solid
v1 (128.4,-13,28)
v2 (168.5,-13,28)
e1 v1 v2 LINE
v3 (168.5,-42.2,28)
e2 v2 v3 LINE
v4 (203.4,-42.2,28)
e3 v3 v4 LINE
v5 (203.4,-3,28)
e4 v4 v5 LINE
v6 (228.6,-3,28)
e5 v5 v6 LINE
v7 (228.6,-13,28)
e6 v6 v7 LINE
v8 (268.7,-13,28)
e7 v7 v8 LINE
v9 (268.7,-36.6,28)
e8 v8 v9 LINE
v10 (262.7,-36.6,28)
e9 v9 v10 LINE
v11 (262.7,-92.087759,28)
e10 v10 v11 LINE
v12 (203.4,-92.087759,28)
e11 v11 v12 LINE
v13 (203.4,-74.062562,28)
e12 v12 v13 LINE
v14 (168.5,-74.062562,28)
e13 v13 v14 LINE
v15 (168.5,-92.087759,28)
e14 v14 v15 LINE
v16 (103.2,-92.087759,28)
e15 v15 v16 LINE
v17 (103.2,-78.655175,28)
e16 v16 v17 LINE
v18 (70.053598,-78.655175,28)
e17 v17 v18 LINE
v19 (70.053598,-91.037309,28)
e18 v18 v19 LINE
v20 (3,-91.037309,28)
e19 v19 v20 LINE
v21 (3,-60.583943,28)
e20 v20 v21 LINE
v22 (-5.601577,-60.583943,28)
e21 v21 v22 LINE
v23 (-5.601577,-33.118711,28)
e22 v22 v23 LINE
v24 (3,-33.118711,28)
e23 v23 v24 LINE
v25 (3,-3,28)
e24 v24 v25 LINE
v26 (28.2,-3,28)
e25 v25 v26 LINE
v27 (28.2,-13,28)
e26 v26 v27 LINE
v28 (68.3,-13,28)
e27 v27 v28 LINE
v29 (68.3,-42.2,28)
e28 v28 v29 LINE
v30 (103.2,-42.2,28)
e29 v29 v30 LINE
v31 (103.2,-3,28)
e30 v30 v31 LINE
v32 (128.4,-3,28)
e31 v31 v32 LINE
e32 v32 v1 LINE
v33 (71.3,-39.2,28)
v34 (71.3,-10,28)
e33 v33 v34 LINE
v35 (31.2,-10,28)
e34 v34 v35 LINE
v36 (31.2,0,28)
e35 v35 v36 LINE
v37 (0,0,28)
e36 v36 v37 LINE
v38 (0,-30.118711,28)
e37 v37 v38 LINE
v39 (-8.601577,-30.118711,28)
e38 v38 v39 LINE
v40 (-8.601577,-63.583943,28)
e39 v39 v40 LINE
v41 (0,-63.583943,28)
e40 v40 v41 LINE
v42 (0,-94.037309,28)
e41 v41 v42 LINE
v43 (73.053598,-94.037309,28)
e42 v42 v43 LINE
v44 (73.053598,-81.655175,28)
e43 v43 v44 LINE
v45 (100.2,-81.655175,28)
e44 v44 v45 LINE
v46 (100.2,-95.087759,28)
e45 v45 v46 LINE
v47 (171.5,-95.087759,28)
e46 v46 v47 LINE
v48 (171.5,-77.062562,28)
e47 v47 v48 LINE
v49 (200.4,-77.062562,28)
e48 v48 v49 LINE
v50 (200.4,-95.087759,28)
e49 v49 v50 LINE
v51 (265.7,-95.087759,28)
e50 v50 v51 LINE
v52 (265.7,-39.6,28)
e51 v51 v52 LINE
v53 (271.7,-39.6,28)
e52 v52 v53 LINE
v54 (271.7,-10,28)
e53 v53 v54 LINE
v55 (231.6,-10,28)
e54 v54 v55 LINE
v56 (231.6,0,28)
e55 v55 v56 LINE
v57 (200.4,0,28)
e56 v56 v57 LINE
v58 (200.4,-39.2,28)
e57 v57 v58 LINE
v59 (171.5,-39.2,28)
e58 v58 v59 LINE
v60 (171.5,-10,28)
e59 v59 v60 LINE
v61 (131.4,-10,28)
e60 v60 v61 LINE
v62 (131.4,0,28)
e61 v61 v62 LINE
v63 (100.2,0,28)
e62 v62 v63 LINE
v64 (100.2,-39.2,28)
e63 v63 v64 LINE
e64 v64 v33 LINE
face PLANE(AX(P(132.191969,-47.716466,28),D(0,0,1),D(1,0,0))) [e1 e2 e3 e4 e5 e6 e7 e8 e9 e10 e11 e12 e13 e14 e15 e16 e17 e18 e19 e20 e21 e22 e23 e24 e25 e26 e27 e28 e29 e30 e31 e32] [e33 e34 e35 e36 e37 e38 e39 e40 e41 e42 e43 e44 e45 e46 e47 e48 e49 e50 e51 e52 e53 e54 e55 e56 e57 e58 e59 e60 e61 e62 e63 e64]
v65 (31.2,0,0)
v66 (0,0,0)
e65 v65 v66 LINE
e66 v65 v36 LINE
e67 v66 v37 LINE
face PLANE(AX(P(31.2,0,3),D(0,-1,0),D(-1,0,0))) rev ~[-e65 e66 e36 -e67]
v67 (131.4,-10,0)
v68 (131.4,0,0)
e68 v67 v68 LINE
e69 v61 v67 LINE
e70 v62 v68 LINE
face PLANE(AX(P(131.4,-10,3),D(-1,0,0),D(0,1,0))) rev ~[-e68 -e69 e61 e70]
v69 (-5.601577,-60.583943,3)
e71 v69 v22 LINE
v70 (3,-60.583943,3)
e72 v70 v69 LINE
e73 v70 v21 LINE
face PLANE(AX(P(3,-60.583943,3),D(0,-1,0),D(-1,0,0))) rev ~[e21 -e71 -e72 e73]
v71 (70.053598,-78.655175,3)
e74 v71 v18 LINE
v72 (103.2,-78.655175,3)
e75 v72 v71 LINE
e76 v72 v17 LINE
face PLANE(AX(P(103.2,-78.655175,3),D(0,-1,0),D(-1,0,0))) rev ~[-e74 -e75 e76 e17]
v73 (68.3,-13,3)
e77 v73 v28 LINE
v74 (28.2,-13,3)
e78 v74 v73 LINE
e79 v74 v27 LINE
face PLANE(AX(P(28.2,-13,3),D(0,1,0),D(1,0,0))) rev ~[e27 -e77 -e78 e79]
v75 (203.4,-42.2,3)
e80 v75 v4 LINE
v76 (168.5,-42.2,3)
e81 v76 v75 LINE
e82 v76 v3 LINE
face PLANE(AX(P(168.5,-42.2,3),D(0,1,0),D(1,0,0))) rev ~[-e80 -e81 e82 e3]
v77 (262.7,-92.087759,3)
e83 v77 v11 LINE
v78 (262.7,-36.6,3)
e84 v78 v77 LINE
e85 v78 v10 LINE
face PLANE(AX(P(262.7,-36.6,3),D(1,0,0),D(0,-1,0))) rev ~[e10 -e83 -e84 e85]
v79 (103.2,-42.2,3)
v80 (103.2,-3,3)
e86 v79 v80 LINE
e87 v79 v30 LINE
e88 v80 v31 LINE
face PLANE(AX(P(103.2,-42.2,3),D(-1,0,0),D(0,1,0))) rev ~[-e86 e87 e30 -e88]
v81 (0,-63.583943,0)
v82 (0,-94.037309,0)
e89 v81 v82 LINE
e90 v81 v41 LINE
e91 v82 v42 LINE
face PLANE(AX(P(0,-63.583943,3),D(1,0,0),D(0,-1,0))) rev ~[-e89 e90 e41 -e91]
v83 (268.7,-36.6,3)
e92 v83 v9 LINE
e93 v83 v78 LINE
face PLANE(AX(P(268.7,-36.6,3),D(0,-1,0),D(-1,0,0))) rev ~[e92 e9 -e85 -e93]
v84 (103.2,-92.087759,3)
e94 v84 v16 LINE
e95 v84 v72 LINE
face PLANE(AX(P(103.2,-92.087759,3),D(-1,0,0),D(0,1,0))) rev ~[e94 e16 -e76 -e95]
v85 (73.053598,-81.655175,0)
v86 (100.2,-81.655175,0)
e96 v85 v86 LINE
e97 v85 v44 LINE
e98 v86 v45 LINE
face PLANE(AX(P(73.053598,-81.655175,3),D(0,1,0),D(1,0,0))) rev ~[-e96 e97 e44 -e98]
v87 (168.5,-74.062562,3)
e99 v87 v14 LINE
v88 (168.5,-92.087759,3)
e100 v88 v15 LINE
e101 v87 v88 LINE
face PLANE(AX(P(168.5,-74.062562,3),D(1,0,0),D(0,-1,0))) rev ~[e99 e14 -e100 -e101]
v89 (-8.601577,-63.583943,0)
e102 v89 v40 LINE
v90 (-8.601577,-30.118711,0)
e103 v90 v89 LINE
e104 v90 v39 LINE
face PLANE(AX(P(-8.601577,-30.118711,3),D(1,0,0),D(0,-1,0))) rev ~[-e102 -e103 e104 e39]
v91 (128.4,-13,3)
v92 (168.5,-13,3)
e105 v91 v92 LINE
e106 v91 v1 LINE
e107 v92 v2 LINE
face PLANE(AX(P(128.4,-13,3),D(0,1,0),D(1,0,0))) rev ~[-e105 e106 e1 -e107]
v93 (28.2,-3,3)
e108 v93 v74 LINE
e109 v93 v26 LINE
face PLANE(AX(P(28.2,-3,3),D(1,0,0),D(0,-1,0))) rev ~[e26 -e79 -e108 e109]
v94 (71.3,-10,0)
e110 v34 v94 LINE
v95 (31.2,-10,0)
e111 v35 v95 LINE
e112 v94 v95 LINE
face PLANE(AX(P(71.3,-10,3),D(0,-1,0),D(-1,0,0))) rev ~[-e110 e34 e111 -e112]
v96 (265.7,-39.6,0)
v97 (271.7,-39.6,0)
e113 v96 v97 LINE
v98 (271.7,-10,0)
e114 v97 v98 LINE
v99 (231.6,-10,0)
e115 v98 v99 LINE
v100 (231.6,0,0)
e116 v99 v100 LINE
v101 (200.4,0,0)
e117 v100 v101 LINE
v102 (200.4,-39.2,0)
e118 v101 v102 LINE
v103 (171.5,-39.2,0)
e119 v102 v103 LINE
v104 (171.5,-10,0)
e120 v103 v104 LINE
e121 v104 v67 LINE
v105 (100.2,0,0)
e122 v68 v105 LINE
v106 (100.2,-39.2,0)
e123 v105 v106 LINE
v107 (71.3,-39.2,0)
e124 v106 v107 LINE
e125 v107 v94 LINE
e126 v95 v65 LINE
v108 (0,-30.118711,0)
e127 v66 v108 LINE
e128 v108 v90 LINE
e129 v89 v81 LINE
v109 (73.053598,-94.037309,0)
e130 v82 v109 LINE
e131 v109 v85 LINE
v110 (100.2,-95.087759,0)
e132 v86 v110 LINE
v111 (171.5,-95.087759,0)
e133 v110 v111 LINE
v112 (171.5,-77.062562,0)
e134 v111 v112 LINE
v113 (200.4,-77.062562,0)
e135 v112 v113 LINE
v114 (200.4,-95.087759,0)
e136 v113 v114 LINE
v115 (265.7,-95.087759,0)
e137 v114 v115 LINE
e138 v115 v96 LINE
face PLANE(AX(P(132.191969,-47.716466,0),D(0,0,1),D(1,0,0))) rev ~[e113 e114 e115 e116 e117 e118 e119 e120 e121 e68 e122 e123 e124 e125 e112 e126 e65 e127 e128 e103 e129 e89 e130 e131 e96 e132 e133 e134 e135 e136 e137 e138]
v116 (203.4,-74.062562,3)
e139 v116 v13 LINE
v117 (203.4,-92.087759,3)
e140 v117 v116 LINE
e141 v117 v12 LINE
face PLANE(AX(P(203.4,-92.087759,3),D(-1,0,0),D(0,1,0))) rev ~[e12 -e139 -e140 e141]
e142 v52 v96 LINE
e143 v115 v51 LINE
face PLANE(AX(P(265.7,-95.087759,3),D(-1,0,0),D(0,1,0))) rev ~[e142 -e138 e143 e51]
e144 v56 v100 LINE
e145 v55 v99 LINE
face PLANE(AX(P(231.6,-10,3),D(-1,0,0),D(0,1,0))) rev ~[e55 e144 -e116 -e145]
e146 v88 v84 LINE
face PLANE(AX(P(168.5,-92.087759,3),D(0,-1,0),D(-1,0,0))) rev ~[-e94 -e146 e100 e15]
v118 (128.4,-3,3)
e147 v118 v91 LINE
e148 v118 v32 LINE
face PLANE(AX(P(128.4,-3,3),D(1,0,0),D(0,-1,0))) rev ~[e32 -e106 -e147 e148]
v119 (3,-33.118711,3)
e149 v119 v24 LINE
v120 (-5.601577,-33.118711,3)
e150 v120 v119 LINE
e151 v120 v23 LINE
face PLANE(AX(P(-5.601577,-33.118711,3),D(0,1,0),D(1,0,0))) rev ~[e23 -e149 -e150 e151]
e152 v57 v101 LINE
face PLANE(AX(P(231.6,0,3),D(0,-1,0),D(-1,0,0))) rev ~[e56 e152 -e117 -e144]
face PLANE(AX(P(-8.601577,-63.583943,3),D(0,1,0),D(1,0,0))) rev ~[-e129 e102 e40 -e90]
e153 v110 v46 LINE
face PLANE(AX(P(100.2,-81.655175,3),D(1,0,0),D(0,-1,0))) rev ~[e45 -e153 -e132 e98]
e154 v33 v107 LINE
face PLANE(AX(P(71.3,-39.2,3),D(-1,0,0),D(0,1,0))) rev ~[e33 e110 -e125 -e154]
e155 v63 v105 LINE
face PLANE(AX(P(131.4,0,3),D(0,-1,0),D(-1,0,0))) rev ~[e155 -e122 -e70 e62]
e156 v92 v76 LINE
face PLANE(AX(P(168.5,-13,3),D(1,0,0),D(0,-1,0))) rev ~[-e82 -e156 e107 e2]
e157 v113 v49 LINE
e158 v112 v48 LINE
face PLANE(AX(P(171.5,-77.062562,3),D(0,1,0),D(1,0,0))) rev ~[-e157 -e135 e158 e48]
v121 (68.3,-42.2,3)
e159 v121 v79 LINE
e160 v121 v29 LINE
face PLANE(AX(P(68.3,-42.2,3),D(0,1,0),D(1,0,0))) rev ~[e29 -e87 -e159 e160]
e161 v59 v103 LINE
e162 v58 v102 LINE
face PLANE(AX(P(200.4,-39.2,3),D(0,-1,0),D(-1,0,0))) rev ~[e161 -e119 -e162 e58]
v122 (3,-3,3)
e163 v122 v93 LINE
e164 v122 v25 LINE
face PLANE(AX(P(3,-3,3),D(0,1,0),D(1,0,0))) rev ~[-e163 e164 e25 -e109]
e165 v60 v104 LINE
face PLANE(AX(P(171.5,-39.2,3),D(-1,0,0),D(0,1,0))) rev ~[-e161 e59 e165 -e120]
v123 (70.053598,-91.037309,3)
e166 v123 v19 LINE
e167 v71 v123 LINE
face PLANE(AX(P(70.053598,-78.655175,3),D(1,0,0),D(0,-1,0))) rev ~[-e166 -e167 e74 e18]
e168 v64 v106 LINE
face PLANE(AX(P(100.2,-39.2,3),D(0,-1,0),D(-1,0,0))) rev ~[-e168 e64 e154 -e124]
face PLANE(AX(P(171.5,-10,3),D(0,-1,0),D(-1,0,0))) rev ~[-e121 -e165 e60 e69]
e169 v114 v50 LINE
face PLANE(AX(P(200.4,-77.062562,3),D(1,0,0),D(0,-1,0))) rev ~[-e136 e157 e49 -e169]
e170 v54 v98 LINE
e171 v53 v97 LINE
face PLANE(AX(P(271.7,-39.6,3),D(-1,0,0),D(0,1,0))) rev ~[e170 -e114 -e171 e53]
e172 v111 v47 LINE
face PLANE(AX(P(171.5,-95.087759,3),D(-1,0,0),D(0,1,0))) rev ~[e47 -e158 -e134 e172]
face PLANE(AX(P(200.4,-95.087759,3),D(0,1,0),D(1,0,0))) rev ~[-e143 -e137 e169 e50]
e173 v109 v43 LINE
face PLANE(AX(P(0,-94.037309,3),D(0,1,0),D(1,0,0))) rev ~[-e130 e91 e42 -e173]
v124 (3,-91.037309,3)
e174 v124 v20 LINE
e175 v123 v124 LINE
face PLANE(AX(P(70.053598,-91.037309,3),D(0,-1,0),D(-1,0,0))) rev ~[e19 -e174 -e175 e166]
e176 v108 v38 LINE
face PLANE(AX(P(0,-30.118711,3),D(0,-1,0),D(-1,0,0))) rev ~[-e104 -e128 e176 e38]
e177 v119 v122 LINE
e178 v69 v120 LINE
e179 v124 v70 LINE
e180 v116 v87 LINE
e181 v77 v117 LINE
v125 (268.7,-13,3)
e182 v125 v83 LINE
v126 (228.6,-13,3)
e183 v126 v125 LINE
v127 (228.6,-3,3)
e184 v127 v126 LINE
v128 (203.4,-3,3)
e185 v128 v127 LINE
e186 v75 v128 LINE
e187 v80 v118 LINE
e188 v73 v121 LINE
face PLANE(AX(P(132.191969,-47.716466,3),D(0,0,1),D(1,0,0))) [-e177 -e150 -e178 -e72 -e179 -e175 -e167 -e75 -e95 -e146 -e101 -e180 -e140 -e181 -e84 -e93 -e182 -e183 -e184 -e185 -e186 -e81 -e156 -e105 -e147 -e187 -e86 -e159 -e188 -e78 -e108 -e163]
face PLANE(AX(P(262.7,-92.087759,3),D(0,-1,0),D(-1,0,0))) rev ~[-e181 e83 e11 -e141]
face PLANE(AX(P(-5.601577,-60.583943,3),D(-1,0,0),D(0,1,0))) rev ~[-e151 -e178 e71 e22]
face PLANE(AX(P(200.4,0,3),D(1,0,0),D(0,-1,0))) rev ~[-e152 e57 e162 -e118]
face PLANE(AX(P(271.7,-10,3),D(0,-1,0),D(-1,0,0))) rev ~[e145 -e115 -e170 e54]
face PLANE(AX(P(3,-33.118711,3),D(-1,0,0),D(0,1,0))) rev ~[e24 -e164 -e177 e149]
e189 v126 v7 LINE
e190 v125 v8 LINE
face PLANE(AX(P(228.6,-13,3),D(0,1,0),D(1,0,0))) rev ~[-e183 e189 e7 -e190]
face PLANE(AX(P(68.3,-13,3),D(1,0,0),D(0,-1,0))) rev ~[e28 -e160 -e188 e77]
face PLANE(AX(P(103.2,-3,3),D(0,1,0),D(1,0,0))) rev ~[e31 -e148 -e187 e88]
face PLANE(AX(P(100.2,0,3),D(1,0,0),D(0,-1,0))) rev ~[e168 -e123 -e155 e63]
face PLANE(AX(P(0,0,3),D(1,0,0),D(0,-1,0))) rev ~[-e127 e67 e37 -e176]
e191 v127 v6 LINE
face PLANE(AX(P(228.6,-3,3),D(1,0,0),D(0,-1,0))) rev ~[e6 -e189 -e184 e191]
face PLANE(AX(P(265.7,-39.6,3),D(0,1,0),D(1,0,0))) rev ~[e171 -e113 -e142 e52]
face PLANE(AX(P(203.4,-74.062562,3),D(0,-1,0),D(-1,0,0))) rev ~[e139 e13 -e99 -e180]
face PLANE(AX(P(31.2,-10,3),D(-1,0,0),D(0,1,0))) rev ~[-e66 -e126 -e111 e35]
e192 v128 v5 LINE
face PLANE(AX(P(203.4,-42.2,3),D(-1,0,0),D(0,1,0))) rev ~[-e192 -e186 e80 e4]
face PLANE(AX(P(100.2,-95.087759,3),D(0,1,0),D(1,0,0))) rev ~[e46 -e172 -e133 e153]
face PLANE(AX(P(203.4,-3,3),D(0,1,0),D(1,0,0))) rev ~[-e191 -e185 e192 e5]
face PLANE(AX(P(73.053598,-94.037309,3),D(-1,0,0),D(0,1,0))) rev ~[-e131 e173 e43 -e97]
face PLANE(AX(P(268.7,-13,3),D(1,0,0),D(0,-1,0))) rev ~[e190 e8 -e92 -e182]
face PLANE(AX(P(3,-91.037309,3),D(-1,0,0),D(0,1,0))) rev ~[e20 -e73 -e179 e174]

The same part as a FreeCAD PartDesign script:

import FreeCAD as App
import Part
import Sketcher

doc = App.newDocument("Part")
body = doc.addObject("PartDesign::Body", "Body")

# Sketch on XY plane
sketch1 = body.newObject("Sketcher::SketchObject", "Sketch")
sketch1.AttachmentSupport = (doc.getObject("XY_Plane"), [""])
sketch1.MapMode = "FlatFace"
sketch1.addGeometry(Part.LineSegment(App.Vector(31, 0, 0), App.Vector(0, 0, 0)), False)
sketch1.addGeometry(Part.LineSegment(App.Vector(0, 0, 0), App.Vector(0, -30, 0)), False)
sketch1.addGeometry(Part.LineSegment(App.Vector(0, -30, 0), App.Vector(-9, -30, 0)), False)
sketch1.addGeometry(Part.LineSegment(App.Vector(-9, -30, 0), App.Vector(-9, -64, 0)), False)
sketch1.addGeometry(Part.LineSegment(App.Vector(-9, -64, 0), App.Vector(0, -64, 0)), False)
sketch1.addGeometry(Part.LineSegment(App.Vector(0, -64, 0), App.Vector(0, -94, 0)), False)
sketch1.addGeometry(Part.LineSegment(App.Vector(0, -94, 0), App.Vector(73, -94, 0)), False)
sketch1.addGeometry(Part.LineSegment(App.Vector(73, -94, 0), App.Vector(73, -82, 0)), False)
sketch1.addGeometry(Part.LineSegment(App.Vector(73, -82, 0), App.Vector(100, -82, 0)), False)
sketch1.addGeometry(Part.LineSegment(App.Vector(100, -82, 0), App.Vector(100, -95, 0)), False)
sketch1.addGeometry(Part.LineSegment(App.Vector(100, -95, 0), App.Vector(172, -95, 0)), False)
sketch1.addGeometry(Part.LineSegment(App.Vector(172, -95, 0), App.Vector(172, -77, 0)), False)
sketch1.addGeometry(Part.LineSegment(App.Vector(172, -77, 0), App.Vector(200, -77, 0)), False)
sketch1.addGeometry(Part.LineSegment(App.Vector(200, -77, 0), App.Vector(200, -95, 0)), False)
sketch1.addGeometry(Part.LineSegment(App.Vector(200, -95, 0), App.Vector(266, -95, 0)), False)
sketch1.addGeometry(Part.LineSegment(App.Vector(266, -95, 0), App.Vector(266, -40, 0)), False)
sketch1.addGeometry(Part.LineSegment(App.Vector(266, -40, 0), App.Vector(272, -40, 0)), False)
sketch1.addGeometry(Part.LineSegment(App.Vector(272, -40, 0), App.Vector(272, -10, 0)), False)
sketch1.addGeometry(Part.LineSegment(App.Vector(272, -10, 0), App.Vector(232, -10, 0)), False)
sketch1.addGeometry(Part.LineSegment(App.Vector(232, -10, 0), App.Vector(232, 0, 0)), False)
sketch1.addGeometry(Part.LineSegment(App.Vector(232, 0, 0), App.Vector(200, 0, 0)), False)
sketch1.addGeometry(Part.LineSegment(App.Vector(200, 0, 0), App.Vector(200, -39, 0)), False)
sketch1.addGeometry(Part.LineSegment(App.Vector(200, -39, 0), App.Vector(172, -39, 0)), False)
sketch1.addGeometry(Part.LineSegment(App.Vector(172, -39, 0), App.Vector(172, -10, 0)), False)
sketch1.addGeometry(Part.LineSegment(App.Vector(172, -10, 0), App.Vector(131, -10, 0)), False)
sketch1.addGeometry(Part.LineSegment(App.Vector(131, -10, 0), App.Vector(131, 0, 0)), False)
sketch1.addGeometry(Part.LineSegment(App.Vector(131, 0, 0), App.Vector(100, 0, 0)), False)
sketch1.addGeometry(Part.LineSegment(App.Vector(100, 0, 0), App.Vector(100, -39, 0)), False)
sketch1.addGeometry(Part.LineSegment(App.Vector(100, -39, 0), App.Vector(71, -39, 0)), False)
sketch1.addGeometry(Part.LineSegment(App.Vector(71, -39, 0), App.Vector(71, -10, 0)), False)
sketch1.addGeometry(Part.LineSegment(App.Vector(71, -10, 0), App.Vector(31, -10, 0)), False)
sketch1.addGeometry(Part.LineSegment(App.Vector(31, -10, 0), App.Vector(31, 0, 0)), False)
sketch1.addConstraint(Sketcher.Constraint("Coincident", 0, 2, 1, 1))
sketch1.addConstraint(Sketcher.Constraint("Coincident", 1, 2, 2, 1))
sketch1.addConstraint(Sketcher.Constraint("Coincident", 2, 2, 3, 1))
sketch1.addConstraint(Sketcher.Constraint("Coincident", 3, 2, 4, 1))
sketch1.addConstraint(Sketcher.Constraint("Coincident", 4, 2, 5, 1))
sketch1.addConstraint(Sketcher.Constraint("Coincident", 5, 2, 6, 1))
sketch1.addConstraint(Sketcher.Constraint("Coincident", 6, 2, 7, 1))
sketch1.addConstraint(Sketcher.Constraint("Coincident", 7, 2, 8, 1))
sketch1.addConstraint(Sketcher.Constraint("Coincident", 8, 2, 9, 1))
sketch1.addConstraint(Sketcher.Constraint("Coincident", 9, 2, 10, 1))
sketch1.addConstraint(Sketcher.Constraint("Coincident", 10, 2, 11, 1))
sketch1.addConstraint(Sketcher.Constraint("Coincident", 11, 2, 12, 1))
sketch1.addConstraint(Sketcher.Constraint("Coincident", 12, 2, 13, 1))
sketch1.addConstraint(Sketcher.Constraint("Coincident", 13, 2, 14, 1))
sketch1.addConstraint(Sketcher.Constraint("Coincident", 14, 2, 15, 1))
sketch1.addConstraint(Sketcher.Constraint("Coincident", 15, 2, 16, 1))
sketch1.addConstraint(Sketcher.Constraint("Coincident", 16, 2, 17, 1))
sketch1.addConstraint(Sketcher.Constraint("Coincident", 17, 2, 18, 1))
sketch1.addConstraint(Sketcher.Constraint("Coincident", 18, 2, 19, 1))
sketch1.addConstraint(Sketcher.Constraint("Coincident", 19, 2, 20, 1))
sketch1.addConstraint(Sketcher.Constraint("Coincident", 20, 2, 21, 1))
sketch1.addConstraint(Sketcher.Constraint("Coincident", 21, 2, 22, 1))
sketch1.addConstraint(Sketcher.Constraint("Coincident", 22, 2, 23, 1))
sketch1.addConstraint(Sketcher.Constraint("Coincident", 23, 2, 24, 1))
sketch1.addConstraint(Sketcher.Constraint("Coincident", 24, 2, 25, 1))
sketch1.addConstraint(Sketcher.Constraint("Coincident", 25, 2, 26, 1))
sketch1.addConstraint(Sketcher.Constraint("Coincident", 26, 2, 27, 1))
sketch1.addConstraint(Sketcher.Constraint("Coincident", 27, 2, 28, 1))
sketch1.addConstraint(Sketcher.Constraint("Coincident", 28, 2, 29, 1))
sketch1.addConstraint(Sketcher.Constraint("Coincident", 29, 2, 30, 1))
sketch1.addConstraint(Sketcher.Constraint("Coincident", 30, 2, 31, 1))
sketch1.addConstraint(Sketcher.Constraint("Coincident", 31, 2, 0, 1))
sketch1.addConstraint(Sketcher.Constraint("Horizontal", 0))
sketch1.addConstraint(Sketcher.Constraint("Vertical", 1))
sketch1.addConstraint(Sketcher.Constraint("Horizontal", 2))
sketch1.addConstraint(Sketcher.Constraint("Vertical", 3))
sketch1.addConstraint(Sketcher.Constraint("Horizontal", 4))
sketch1.addConstraint(Sketcher.Constraint("Vertical", 5))
sketch1.addConstraint(Sketcher.Constraint("Horizontal", 6))
sketch1.addConstraint(Sketcher.Constraint("Vertical", 7))
sketch1.addConstraint(Sketcher.Constraint("Horizontal", 8))
sketch1.addConstraint(Sketcher.Constraint("Vertical", 9))
sketch1.addConstraint(Sketcher.Constraint("Horizontal", 10))
sketch1.addConstraint(Sketcher.Constraint("Vertical", 11))
sketch1.addConstraint(Sketcher.Constraint("Horizontal", 12))
sketch1.addConstraint(Sketcher.Constraint("Vertical", 13))
sketch1.addConstraint(Sketcher.Constraint("Horizontal", 14))
sketch1.addConstraint(Sketcher.Constraint("Vertical", 15))
sketch1.addConstraint(Sketcher.Constraint("Horizontal", 16))
sketch1.addConstraint(Sketcher.Constraint("Vertical", 17))
sketch1.addConstraint(Sketcher.Constraint("Horizontal", 18))
sketch1.addConstraint(Sketcher.Constraint("Vertical", 19))
sketch1.addConstraint(Sketcher.Constraint("Horizontal", 20))
sketch1.addConstraint(Sketcher.Constraint("Vertical", 21))
sketch1.addConstraint(Sketcher.Constraint("Horizontal", 22))
sketch1.addConstraint(Sketcher.Constraint("Vertical", 23))
sketch1.addConstraint(Sketcher.Constraint("Horizontal", 24))
sketch1.addConstraint(Sketcher.Constraint("Vertical", 25))
sketch1.addConstraint(Sketcher.Constraint("Horizontal", 26))
sketch1.addConstraint(Sketcher.Constraint("Vertical", 27))
sketch1.addConstraint(Sketcher.Constraint("Horizontal", 28))
sketch1.addConstraint(Sketcher.Constraint("Vertical", 29))
sketch1.addConstraint(Sketcher.Constraint("Horizontal", 30))
sketch1.addConstraint(Sketcher.Constraint("Vertical", 31))
sketch1.addConstraint(Sketcher.Constraint("Coincident", 0, 2, -1, 1))
sketch1.addConstraint(Sketcher.Constraint("PointOnObject", 4, 2, -2))
sketch1.addConstraint(Sketcher.Constraint("PointOnObject", 19, 2, -1))
sketch1.addConstraint(Sketcher.Constraint("PointOnObject", 25, 2, -1))
sketch1.addConstraint(Sketcher.Constraint("Horizontal", 10, 2, 13, 2))
sketch1.addConstraint(Sketcher.Constraint("Horizontal", 18, 2, 23, 2))
sketch1.addConstraint(Sketcher.Constraint("Horizontal", 22, 2, 27, 2))
sketch1.addConstraint(Sketcher.Constraint("Horizontal", 24, 2, 29, 2))
sketch1.addConstraint(Sketcher.Constraint("Vertical", 13, 2, 20, 2))
sketch1.addConstraint(Sketcher.Constraint("Vertical", 11, 2, 22, 2))
sketch1.addConstraint(Sketcher.Constraint("Vertical", 9, 2, 26, 2))
sketch1.addConstraint(Sketcher.Constraint("Equal", 0, 20))
sketch1.addConstraint(Sketcher.Constraint("Equal", 18, 24))
sketch1.addConstraint(Sketcher.Constraint("Equal", 20, 26))
sketch1.addConstraint(Sketcher.Constraint("Equal", 22, 28))
sketch1.addConstraint(Sketcher.Constraint("Equal", 24, 30))
sketch1.addConstraint(Sketcher.Constraint("DistanceX", 16, 1, 16, 2, 6.0))
sketch1.addConstraint(Sketcher.Constraint("DistanceY", 19, 1, 19, 2, 10.0))
sketch1.addConstraint(Sketcher.Constraint("DistanceX", 0, 2, 0, 1, 31.2))
sketch1.addConstraint(Sketcher.Constraint("DistanceX", 10, 1, 10, 2, 71.3))
sketch1.addConstraint(Sketcher.Constraint("DistanceX", 12, 1, 12, 2, 28.9))
sketch1.addConstraint(Sketcher.Constraint("DistanceY", 17, 1, 17, 2, 29.6))
sketch1.addConstraint(Sketcher.Constraint("DistanceY", 21, 2, 21, 1, 39.2))
sketch1.addConstraint(Sketcher.Constraint("DistanceY", 1, 2, 1, 1, 30.118711))
sketch1.addConstraint(Sketcher.Constraint("DistanceY", 15, 1, 15, 2, 55.487759))
sketch1.addConstraint(Sketcher.Constraint("DistanceX", 2, 2, 2, 1, 8.601577))
sketch1.addConstraint(Sketcher.Constraint("DistanceX", 6, 1, 6, 2, 73.053598))
sketch1.addConstraint(Sketcher.Constraint("DistanceY", 3, 2, 3, 1, 33.465232))
sketch1.addConstraint(Sketcher.Constraint("DistanceY", 5, 2, 5, 1, 30.453366))
sketch1.addConstraint(Sketcher.Constraint("DistanceY", 7, 1, 7, 2, 12.382134))
sketch1.addConstraint(Sketcher.Constraint("DistanceY", 11, 1, 11, 2, 18.025197))
pad1 = body.newObject("PartDesign::Pad", "Pad")
pad1.Profile = sketch1
pad1.Length = 3

# Sketch on XY plane
sketch2 = body.newObject("Sketcher::SketchObject", "Sketch001")
sketch2.AttachmentSupport = (doc.getObject("XY_Plane"), [""])
sketch2.MapMode = "FlatFace"
sketch2.AttachmentOffset = App.Placement(App.Vector(0, 0, 3), App.Rotation())
sketch2.addGeometry(Part.LineSegment(App.Vector(31, -10, 0), App.Vector(31, 0, 0)), False)
sketch2.addGeometry(Part.LineSegment(App.Vector(31, 0, 0), App.Vector(0, 0, 0)), False)
sketch2.addGeometry(Part.LineSegment(App.Vector(0, 0, 0), App.Vector(0, -30, 0)), False)
sketch2.addGeometry(Part.LineSegment(App.Vector(0, -30, 0), App.Vector(-9, -30, 0)), False)
sketch2.addGeometry(Part.LineSegment(App.Vector(-9, -30, 0), App.Vector(-9, -64, 0)), False)
sketch2.addGeometry(Part.LineSegment(App.Vector(-9, -64, 0), App.Vector(0, -64, 0)), False)
sketch2.addGeometry(Part.LineSegment(App.Vector(0, -64, 0), App.Vector(0, -94, 0)), False)
sketch2.addGeometry(Part.LineSegment(App.Vector(0, -94, 0), App.Vector(73, -94, 0)), False)
sketch2.addGeometry(Part.LineSegment(App.Vector(73, -94, 0), App.Vector(73, -82, 0)), False)
sketch2.addGeometry(Part.LineSegment(App.Vector(73, -82, 0), App.Vector(100, -82, 0)), False)
sketch2.addGeometry(Part.LineSegment(App.Vector(100, -82, 0), App.Vector(100, -95, 0)), False)
sketch2.addGeometry(Part.LineSegment(App.Vector(100, -95, 0), App.Vector(172, -95, 0)), False)
sketch2.addGeometry(Part.LineSegment(App.Vector(172, -95, 0), App.Vector(172, -77, 0)), False)
sketch2.addGeometry(Part.LineSegment(App.Vector(172, -77, 0), App.Vector(200, -77, 0)), False)
sketch2.addGeometry(Part.LineSegment(App.Vector(200, -77, 0), App.Vector(200, -95, 0)), False)
sketch2.addGeometry(Part.LineSegment(App.Vector(200, -95, 0), App.Vector(266, -95, 0)), False)
sketch2.addGeometry(Part.LineSegment(App.Vector(266, -95, 0), App.Vector(266, -40, 0)), False)
sketch2.addGeometry(Part.LineSegment(App.Vector(266, -40, 0), App.Vector(272, -40, 0)), False)
sketch2.addGeometry(Part.LineSegment(App.Vector(272, -40, 0), App.Vector(272, -10, 0)), False)
sketch2.addGeometry(Part.LineSegment(App.Vector(272, -10, 0), App.Vector(232, -10, 0)), False)
sketch2.addGeometry(Part.LineSegment(App.Vector(232, -10, 0), App.Vector(232, 0, 0)), False)
sketch2.addGeometry(Part.LineSegment(App.Vector(232, 0, 0), App.Vector(200, 0, 0)), False)
sketch2.addGeometry(Part.LineSegment(App.Vector(200, 0, 0), App.Vector(200, -39, 0)), False)
sketch2.addGeometry(Part.LineSegment(App.Vector(200, -39, 0), App.Vector(172, -39, 0)), False)
sketch2.addGeometry(Part.LineSegment(App.Vector(172, -39, 0), App.Vector(172, -10, 0)), False)
sketch2.addGeometry(Part.LineSegment(App.Vector(172, -10, 0), App.Vector(131, -10, 0)), False)
sketch2.addGeometry(Part.LineSegment(App.Vector(131, -10, 0), App.Vector(131, 0, 0)), False)
sketch2.addGeometry(Part.LineSegment(App.Vector(131, 0, 0), App.Vector(100, 0, 0)), False)
sketch2.addGeometry(Part.LineSegment(App.Vector(100, 0, 0), App.Vector(100, -39, 0)), False)
sketch2.addGeometry(Part.LineSegment(App.Vector(100, -39, 0), App.Vector(71, -39, 0)), False)
sketch2.addGeometry(Part.LineSegment(App.Vector(71, -39, 0), App.Vector(71, -10, 0)), False)
sketch2.addGeometry(Part.LineSegment(App.Vector(71, -10, 0), App.Vector(31, -10, 0)), False)
sketch2.addGeometry(Part.LineSegment(App.Vector(70, -91, 0), App.Vector(3, -91, 0)), False)
sketch2.addGeometry(Part.LineSegment(App.Vector(3, -91, 0), App.Vector(3, -61, 0)), False)
sketch2.addGeometry(Part.LineSegment(App.Vector(3, -61, 0), App.Vector(-6, -61, 0)), False)
sketch2.addGeometry(Part.LineSegment(App.Vector(-6, -61, 0), App.Vector(-6, -33, 0)), False)
sketch2.addGeometry(Part.LineSegment(App.Vector(-6, -33, 0), App.Vector(3, -33, 0)), False)
sketch2.addGeometry(Part.LineSegment(App.Vector(3, -33, 0), App.Vector(3, -3, 0)), False)
sketch2.addGeometry(Part.LineSegment(App.Vector(3, -3, 0), App.Vector(28, -3, 0)), False)
sketch2.addGeometry(Part.LineSegment(App.Vector(28, -3, 0), App.Vector(28, -13, 0)), False)
sketch2.addGeometry(Part.LineSegment(App.Vector(28, -13, 0), App.Vector(68, -13, 0)), False)
sketch2.addGeometry(Part.LineSegment(App.Vector(68, -13, 0), App.Vector(68, -42, 0)), False)
sketch2.addGeometry(Part.LineSegment(App.Vector(68, -42, 0), App.Vector(103, -42, 0)), False)
sketch2.addGeometry(Part.LineSegment(App.Vector(103, -42, 0), App.Vector(103, -3, 0)), False)
sketch2.addGeometry(Part.LineSegment(App.Vector(103, -3, 0), App.Vector(128, -3, 0)), False)
sketch2.addGeometry(Part.LineSegment(App.Vector(128, -3, 0), App.Vector(128, -13, 0)), False)
sketch2.addGeometry(Part.LineSegment(App.Vector(128, -13, 0), App.Vector(168, -13, 0)), False)
sketch2.addGeometry(Part.LineSegment(App.Vector(168, -13, 0), App.Vector(168, -42, 0)), False)
sketch2.addGeometry(Part.LineSegment(App.Vector(168, -42, 0), App.Vector(203, -42, 0)), False)
sketch2.addGeometry(Part.LineSegment(App.Vector(203, -42, 0), App.Vector(203, -3, 0)), False)
sketch2.addGeometry(Part.LineSegment(App.Vector(203, -3, 0), App.Vector(229, -3, 0)), False)
sketch2.addGeometry(Part.LineSegment(App.Vector(229, -3, 0), App.Vector(229, -13, 0)), False)
sketch2.addGeometry(Part.LineSegment(App.Vector(229, -13, 0), App.Vector(269, -13, 0)), False)
sketch2.addGeometry(Part.LineSegment(App.Vector(269, -13, 0), App.Vector(269, -37, 0)), False)
sketch2.addGeometry(Part.LineSegment(App.Vector(269, -37, 0), App.Vector(263, -37, 0)), False)
sketch2.addGeometry(Part.LineSegment(App.Vector(263, -37, 0), App.Vector(263, -92, 0)), False)
sketch2.addGeometry(Part.LineSegment(App.Vector(263, -92, 0), App.Vector(203, -92, 0)), False)
sketch2.addGeometry(Part.LineSegment(App.Vector(203, -92, 0), App.Vector(203, -74, 0)), False)
sketch2.addGeometry(Part.LineSegment(App.Vector(203, -74, 0), App.Vector(168, -74, 0)), False)
sketch2.addGeometry(Part.LineSegment(App.Vector(168, -74, 0), App.Vector(168, -92, 0)), False)
sketch2.addGeometry(Part.LineSegment(App.Vector(168, -92, 0), App.Vector(103, -92, 0)), False)
sketch2.addGeometry(Part.LineSegment(App.Vector(103, -92, 0), App.Vector(103, -79, 0)), False)
sketch2.addGeometry(Part.LineSegment(App.Vector(103, -79, 0), App.Vector(70, -79, 0)), False)
sketch2.addGeometry(Part.LineSegment(App.Vector(70, -79, 0), App.Vector(70, -91, 0)), False)
sketch2.addConstraint(Sketcher.Constraint("Coincident", 0, 2, 1, 1))
sketch2.addConstraint(Sketcher.Constraint("Coincident", 1, 2, 2, 1))
sketch2.addConstraint(Sketcher.Constraint("Coincident", 2, 2, 3, 1))
sketch2.addConstraint(Sketcher.Constraint("Coincident", 3, 2, 4, 1))
sketch2.addConstraint(Sketcher.Constraint("Coincident", 4, 2, 5, 1))
sketch2.addConstraint(Sketcher.Constraint("Coincident", 5, 2, 6, 1))
sketch2.addConstraint(Sketcher.Constraint("Coincident", 6, 2, 7, 1))
sketch2.addConstraint(Sketcher.Constraint("Coincident", 7, 2, 8, 1))
sketch2.addConstraint(Sketcher.Constraint("Coincident", 8, 2, 9, 1))
sketch2.addConstraint(Sketcher.Constraint("Coincident", 9, 2, 10, 1))
sketch2.addConstraint(Sketcher.Constraint("Coincident", 10, 2, 11, 1))
sketch2.addConstraint(Sketcher.Constraint("Coincident", 11, 2, 12, 1))
sketch2.addConstraint(Sketcher.Constraint("Coincident", 12, 2, 13, 1))
sketch2.addConstraint(Sketcher.Constraint("Coincident", 13, 2, 14, 1))
sketch2.addConstraint(Sketcher.Constraint("Coincident", 14, 2, 15, 1))
sketch2.addConstraint(Sketcher.Constraint("Coincident", 15, 2, 16, 1))
sketch2.addConstraint(Sketcher.Constraint("Coincident", 16, 2, 17, 1))
sketch2.addConstraint(Sketcher.Constraint("Coincident", 17, 2, 18, 1))
sketch2.addConstraint(Sketcher.Constraint("Coincident", 18, 2, 19, 1))
sketch2.addConstraint(Sketcher.Constraint("Coincident", 19, 2, 20, 1))
sketch2.addConstraint(Sketcher.Constraint("Coincident", 20, 2, 21, 1))
sketch2.addConstraint(Sketcher.Constraint("Coincident", 21, 2, 22, 1))
sketch2.addConstraint(Sketcher.Constraint("Coincident", 22, 2, 23, 1))
sketch2.addConstraint(Sketcher.Constraint("Coincident", 23, 2, 24, 1))
sketch2.addConstraint(Sketcher.Constraint("Coincident", 24, 2, 25, 1))
sketch2.addConstraint(Sketcher.Constraint("Coincident", 25, 2, 26, 1))
sketch2.addConstraint(Sketcher.Constraint("Coincident", 26, 2, 27, 1))
sketch2.addConstraint(Sketcher.Constraint("Coincident", 27, 2, 28, 1))
sketch2.addConstraint(Sketcher.Constraint("Coincident", 28, 2, 29, 1))
sketch2.addConstraint(Sketcher.Constraint("Coincident", 29, 2, 30, 1))
sketch2.addConstraint(Sketcher.Constraint("Coincident", 30, 2, 31, 1))
sketch2.addConstraint(Sketcher.Constraint("Coincident", 31, 2, 0, 1))
sketch2.addConstraint(Sketcher.Constraint("Coincident", 32, 2, 33, 1))
sketch2.addConstraint(Sketcher.Constraint("Coincident", 33, 2, 34, 1))
sketch2.addConstraint(Sketcher.Constraint("Coincident", 34, 2, 35, 1))
sketch2.addConstraint(Sketcher.Constraint("Coincident", 35, 2, 36, 1))
sketch2.addConstraint(Sketcher.Constraint("Coincident", 36, 2, 37, 1))
sketch2.addConstraint(Sketcher.Constraint("Coincident", 37, 2, 38, 1))
sketch2.addConstraint(Sketcher.Constraint("Coincident", 38, 2, 39, 1))
sketch2.addConstraint(Sketcher.Constraint("Coincident", 39, 2, 40, 1))
sketch2.addConstraint(Sketcher.Constraint("Coincident", 40, 2, 41, 1))
sketch2.addConstraint(Sketcher.Constraint("Coincident", 41, 2, 42, 1))
sketch2.addConstraint(Sketcher.Constraint("Coincident", 42, 2, 43, 1))
sketch2.addConstraint(Sketcher.Constraint("Coincident", 43, 2, 44, 1))
sketch2.addConstraint(Sketcher.Constraint("Coincident", 44, 2, 45, 1))
sketch2.addConstraint(Sketcher.Constraint("Coincident", 45, 2, 46, 1))
sketch2.addConstraint(Sketcher.Constraint("Coincident", 46, 2, 47, 1))
sketch2.addConstraint(Sketcher.Constraint("Coincident", 47, 2, 48, 1))
sketch2.addConstraint(Sketcher.Constraint("Coincident", 48, 2, 49, 1))
sketch2.addConstraint(Sketcher.Constraint("Coincident", 49, 2, 50, 1))
sketch2.addConstraint(Sketcher.Constraint("Coincident", 50, 2, 51, 1))
sketch2.addConstraint(Sketcher.Constraint("Coincident", 51, 2, 52, 1))
sketch2.addConstraint(Sketcher.Constraint("Coincident", 52, 2, 53, 1))
sketch2.addConstraint(Sketcher.Constraint("Coincident", 53, 2, 54, 1))
sketch2.addConstraint(Sketcher.Constraint("Coincident", 54, 2, 55, 1))
sketch2.addConstraint(Sketcher.Constraint("Coincident", 55, 2, 56, 1))
sketch2.addConstraint(Sketcher.Constraint("Coincident", 56, 2, 57, 1))
sketch2.addConstraint(Sketcher.Constraint("Coincident", 57, 2, 58, 1))
sketch2.addConstraint(Sketcher.Constraint("Coincident", 58, 2, 59, 1))
sketch2.addConstraint(Sketcher.Constraint("Coincident", 59, 2, 60, 1))
sketch2.addConstraint(Sketcher.Constraint("Coincident", 60, 2, 61, 1))
sketch2.addConstraint(Sketcher.Constraint("Coincident", 61, 2, 62, 1))
sketch2.addConstraint(Sketcher.Constraint("Coincident", 62, 2, 63, 1))
sketch2.addConstraint(Sketcher.Constraint("Coincident", 63, 2, 32, 1))
sketch2.addConstraint(Sketcher.Constraint("Vertical", 0))
sketch2.addConstraint(Sketcher.Constraint("Horizontal", 1))
sketch2.addConstraint(Sketcher.Constraint("Vertical", 2))
sketch2.addConstraint(Sketcher.Constraint("Horizontal", 3))
sketch2.addConstraint(Sketcher.Constraint("Vertical", 4))
sketch2.addConstraint(Sketcher.Constraint("Horizontal", 5))
sketch2.addConstraint(Sketcher.Constraint("Vertical", 6))
sketch2.addConstraint(Sketcher.Constraint("Horizontal", 7))
sketch2.addConstraint(Sketcher.Constraint("Vertical", 8))
sketch2.addConstraint(Sketcher.Constraint("Horizontal", 9))
sketch2.addConstraint(Sketcher.Constraint("Vertical", 10))
sketch2.addConstraint(Sketcher.Constraint("Horizontal", 11))
sketch2.addConstraint(Sketcher.Constraint("Vertical", 12))
sketch2.addConstraint(Sketcher.Constraint("Horizontal", 13))
sketch2.addConstraint(Sketcher.Constraint("Vertical", 14))
sketch2.addConstraint(Sketcher.Constraint("Horizontal", 15))
sketch2.addConstraint(Sketcher.Constraint("Vertical", 16))
sketch2.addConstraint(Sketcher.Constraint("Horizontal", 17))
sketch2.addConstraint(Sketcher.Constraint("Vertical", 18))
sketch2.addConstraint(Sketcher.Constraint("Horizontal", 19))
sketch2.addConstraint(Sketcher.Constraint("Vertical", 20))
sketch2.addConstraint(Sketcher.Constraint("Horizontal", 21))
sketch2.addConstraint(Sketcher.Constraint("Vertical", 22))
sketch2.addConstraint(Sketcher.Constraint("Horizontal", 23))
sketch2.addConstraint(Sketcher.Constraint("Vertical", 24))
sketch2.addConstraint(Sketcher.Constraint("Horizontal", 25))
sketch2.addConstraint(Sketcher.Constraint("Vertical", 26))
sketch2.addConstraint(Sketcher.Constraint("Horizontal", 27))
sketch2.addConstraint(Sketcher.Constraint("Vertical", 28))
sketch2.addConstraint(Sketcher.Constraint("Horizontal", 29))
sketch2.addConstraint(Sketcher.Constraint("Vertical", 30))
sketch2.addConstraint(Sketcher.Constraint("Horizontal", 31))
sketch2.addConstraint(Sketcher.Constraint("Horizontal", 32))
sketch2.addConstraint(Sketcher.Constraint("Vertical", 33))
sketch2.addConstraint(Sketcher.Constraint("Horizontal", 34))
sketch2.addConstraint(Sketcher.Constraint("Vertical", 35))
sketch2.addConstraint(Sketcher.Constraint("Horizontal", 36))
sketch2.addConstraint(Sketcher.Constraint("Vertical", 37))
sketch2.addConstraint(Sketcher.Constraint("Horizontal", 38))
sketch2.addConstraint(Sketcher.Constraint("Vertical", 39))
sketch2.addConstraint(Sketcher.Constraint("Horizontal", 40))
sketch2.addConstraint(Sketcher.Constraint("Vertical", 41))
sketch2.addConstraint(Sketcher.Constraint("Horizontal", 42))
sketch2.addConstraint(Sketcher.Constraint("Vertical", 43))
sketch2.addConstraint(Sketcher.Constraint("Horizontal", 44))
sketch2.addConstraint(Sketcher.Constraint("Vertical", 45))
sketch2.addConstraint(Sketcher.Constraint("Horizontal", 46))
sketch2.addConstraint(Sketcher.Constraint("Vertical", 47))
sketch2.addConstraint(Sketcher.Constraint("Horizontal", 48))
sketch2.addConstraint(Sketcher.Constraint("Vertical", 49))
sketch2.addConstraint(Sketcher.Constraint("Horizontal", 50))
sketch2.addConstraint(Sketcher.Constraint("Vertical", 51))
sketch2.addConstraint(Sketcher.Constraint("Horizontal", 52))
sketch2.addConstraint(Sketcher.Constraint("Vertical", 53))
sketch2.addConstraint(Sketcher.Constraint("Horizontal", 54))
sketch2.addConstraint(Sketcher.Constraint("Vertical", 55))
sketch2.addConstraint(Sketcher.Constraint("Horizontal", 56))
sketch2.addConstraint(Sketcher.Constraint("Vertical", 57))
sketch2.addConstraint(Sketcher.Constraint("Horizontal", 58))
sketch2.addConstraint(Sketcher.Constraint("Vertical", 59))
sketch2.addConstraint(Sketcher.Constraint("Horizontal", 60))
sketch2.addConstraint(Sketcher.Constraint("Vertical", 61))
sketch2.addConstraint(Sketcher.Constraint("Horizontal", 62))
sketch2.addConstraint(Sketcher.Constraint("Vertical", 63))
sketch2.addConstraint(Sketcher.Constraint("Coincident", 1, 2, -1, 1))
sketch2.addConstraint(Sketcher.Constraint("PointOnObject", 5, 2, -2))
sketch2.addConstraint(Sketcher.Constraint("PointOnObject", 20, 2, -1))
sketch2.addConstraint(Sketcher.Constraint("PointOnObject", 26, 2, -1))
sketch2.addConstraint(Sketcher.Constraint("Horizontal", 11, 2, 14, 2))
sketch2.addConstraint(Sketcher.Constraint("Horizontal", 19, 2, 24, 2))
sketch2.addConstraint(Sketcher.Constraint("Horizontal", 23, 2, 28, 2))
sketch2.addConstraint(Sketcher.Constraint("Horizontal", 25, 2, 30, 2))
sketch2.addConstraint(Sketcher.Constraint("Horizontal", 38, 2, 43, 2))
sketch2.addConstraint(Sketcher.Constraint("Horizontal", 40, 2, 45, 2))
sketch2.addConstraint(Sketcher.Constraint("Horizontal", 42, 2, 47, 2))
sketch2.addConstraint(Sketcher.Constraint("Horizontal", 44, 2, 49, 2))
sketch2.addConstraint(Sketcher.Constraint("Horizontal", 46, 2, 51, 2))
sketch2.addConstraint(Sketcher.Constraint("Horizontal", 56, 2, 59, 2))
sketch2.addConstraint(Sketcher.Constraint("Vertical", 14, 2, 21, 2))
sketch2.addConstraint(Sketcher.Constraint("Vertical", 12, 2, 23, 2))
sketch2.addConstraint(Sketcher.Constraint("Vertical", 10, 2, 27, 2))
sketch2.addConstraint(Sketcher.Constraint("Vertical", 33, 2, 36, 2))
sketch2.addConstraint(Sketcher.Constraint("Vertical", 49, 2, 56, 2))
sketch2.addConstraint(Sketcher.Constraint("Vertical", 47, 2, 58, 2))
sketch2.addConstraint(Sketcher.Constraint("Vertical", 43, 2, 60, 2))
sketch2.addConstraint(Sketcher.Constraint("Equal", 1, 21))
sketch2.addConstraint(Sketcher.Constraint("Equal", 19, 25))
sketch2.addConstraint(Sketcher.Constraint("Equal", 21, 27))
sketch2.addConstraint(Sketcher.Constraint("Equal", 23, 29))
sketch2.addConstraint(Sketcher.Constraint("Equal", 25, 31))
sketch2.addConstraint(Sketcher.Constraint("Equal", 5, 34))
sketch2.addConstraint(Sketcher.Constraint("Equal", 31, 40))
sketch2.addConstraint(Sketcher.Constraint("Equal", 38, 44))
sketch2.addConstraint(Sketcher.Constraint("Equal", 40, 46))
sketch2.addConstraint(Sketcher.Constraint("Equal", 42, 48))
sketch2.addConstraint(Sketcher.Constraint("Equal", 44, 50))
sketch2.addConstraint(Sketcher.Constraint("Equal", 46, 52))
sketch2.addConstraint(Sketcher.Constraint("Equal", 17, 54))
sketch2.addConstraint(Sketcher.Constraint("Equal", 15, 60))
sketch2.addConstraint(Sketcher.Constraint("Equal", 6, 33))
sketch2.addConstraint(Sketcher.Constraint("Equal", 2, 37))
sketch2.addConstraint(Sketcher.Constraint("Equal", 26, 39))
sketch2.addConstraint(Sketcher.Constraint("Equal", 30, 41))
sketch2.addConstraint(Sketcher.Constraint("Equal", 16, 55))
sketch2.addConstraint(Sketcher.Constraint("Equal", 14, 57))
sketch2.addConstraint(Sketcher.Constraint("Equal", 10, 61))
sketch2.addConstraint(Sketcher.Constraint("Equal", 8, 63))
sketch2.addConstraint(Sketcher.Constraint("DistanceX", 17, 1, 17, 2, 6.0))
sketch2.addConstraint(Sketcher.Constraint("DistanceY", 0, 1, 0, 2, 10.0))
sketch2.addConstraint(Sketcher.Constraint("DistanceX", 1, 2, 1, 1, 31.2))
sketch2.addConstraint(Sketcher.Constraint("DistanceX", 11, 1, 11, 2, 71.3))
sketch2.addConstraint(Sketcher.Constraint("DistanceX", 13, 1, 13, 2, 28.9))
sketch2.addConstraint(Sketcher.Constraint("DistanceX", 42, 1, 42, 2, 34.9))
sketch2.addConstraint(Sketcher.Constraint("DistanceY", 18, 1, 18, 2, 29.6))
sketch2.addConstraint(Sketcher.Constraint("DistanceY", 22, 2, 22, 1, 39.2))
sketch2.addConstraint(Sketcher.Constraint("DistanceY", 53, 2, 53, 1, 23.6))
sketch2.addConstraint(Sketcher.Constraint("DistanceX", -1, 1, 32, 2, 3.0))
sketch2.addConstraint(Sketcher.Constraint("DistanceY", 37, 2, -1, 1, 3.0))
sketch2.addConstraint(Sketcher.Constraint("DistanceY", 2, 2, 2, 1, 30.118711))
sketch2.addConstraint(Sketcher.Constraint("DistanceY", 16, 1, 16, 2, 55.487759))
sketch2.addConstraint(Sketcher.Constraint("DistanceX", 3, 2, 3, 1, 8.601577))
sketch2.addConstraint(Sketcher.Constraint("DistanceX", 7, 1, 7, 2, 73.053598))
sketch2.addConstraint(Sketcher.Constraint("DistanceX", 32, 2, 32, 1, 67.053598))
sketch2.addConstraint(Sketcher.Constraint("DistanceY", 4, 2, 4, 1, 33.465232))
sketch2.addConstraint(Sketcher.Constraint("DistanceY", 6, 2, 6, 1, 30.453366))
sketch2.addConstraint(Sketcher.Constraint("DistanceY", 8, 1, 8, 2, 12.382134))
sketch2.addConstraint(Sketcher.Constraint("DistanceY", 12, 1, 12, 2, 18.025197))
pad2 = body.newObject("PartDesign::Pad", "Pad001")
pad2.Profile = sketch2
pad2.Length = 25

doc.recompute()
